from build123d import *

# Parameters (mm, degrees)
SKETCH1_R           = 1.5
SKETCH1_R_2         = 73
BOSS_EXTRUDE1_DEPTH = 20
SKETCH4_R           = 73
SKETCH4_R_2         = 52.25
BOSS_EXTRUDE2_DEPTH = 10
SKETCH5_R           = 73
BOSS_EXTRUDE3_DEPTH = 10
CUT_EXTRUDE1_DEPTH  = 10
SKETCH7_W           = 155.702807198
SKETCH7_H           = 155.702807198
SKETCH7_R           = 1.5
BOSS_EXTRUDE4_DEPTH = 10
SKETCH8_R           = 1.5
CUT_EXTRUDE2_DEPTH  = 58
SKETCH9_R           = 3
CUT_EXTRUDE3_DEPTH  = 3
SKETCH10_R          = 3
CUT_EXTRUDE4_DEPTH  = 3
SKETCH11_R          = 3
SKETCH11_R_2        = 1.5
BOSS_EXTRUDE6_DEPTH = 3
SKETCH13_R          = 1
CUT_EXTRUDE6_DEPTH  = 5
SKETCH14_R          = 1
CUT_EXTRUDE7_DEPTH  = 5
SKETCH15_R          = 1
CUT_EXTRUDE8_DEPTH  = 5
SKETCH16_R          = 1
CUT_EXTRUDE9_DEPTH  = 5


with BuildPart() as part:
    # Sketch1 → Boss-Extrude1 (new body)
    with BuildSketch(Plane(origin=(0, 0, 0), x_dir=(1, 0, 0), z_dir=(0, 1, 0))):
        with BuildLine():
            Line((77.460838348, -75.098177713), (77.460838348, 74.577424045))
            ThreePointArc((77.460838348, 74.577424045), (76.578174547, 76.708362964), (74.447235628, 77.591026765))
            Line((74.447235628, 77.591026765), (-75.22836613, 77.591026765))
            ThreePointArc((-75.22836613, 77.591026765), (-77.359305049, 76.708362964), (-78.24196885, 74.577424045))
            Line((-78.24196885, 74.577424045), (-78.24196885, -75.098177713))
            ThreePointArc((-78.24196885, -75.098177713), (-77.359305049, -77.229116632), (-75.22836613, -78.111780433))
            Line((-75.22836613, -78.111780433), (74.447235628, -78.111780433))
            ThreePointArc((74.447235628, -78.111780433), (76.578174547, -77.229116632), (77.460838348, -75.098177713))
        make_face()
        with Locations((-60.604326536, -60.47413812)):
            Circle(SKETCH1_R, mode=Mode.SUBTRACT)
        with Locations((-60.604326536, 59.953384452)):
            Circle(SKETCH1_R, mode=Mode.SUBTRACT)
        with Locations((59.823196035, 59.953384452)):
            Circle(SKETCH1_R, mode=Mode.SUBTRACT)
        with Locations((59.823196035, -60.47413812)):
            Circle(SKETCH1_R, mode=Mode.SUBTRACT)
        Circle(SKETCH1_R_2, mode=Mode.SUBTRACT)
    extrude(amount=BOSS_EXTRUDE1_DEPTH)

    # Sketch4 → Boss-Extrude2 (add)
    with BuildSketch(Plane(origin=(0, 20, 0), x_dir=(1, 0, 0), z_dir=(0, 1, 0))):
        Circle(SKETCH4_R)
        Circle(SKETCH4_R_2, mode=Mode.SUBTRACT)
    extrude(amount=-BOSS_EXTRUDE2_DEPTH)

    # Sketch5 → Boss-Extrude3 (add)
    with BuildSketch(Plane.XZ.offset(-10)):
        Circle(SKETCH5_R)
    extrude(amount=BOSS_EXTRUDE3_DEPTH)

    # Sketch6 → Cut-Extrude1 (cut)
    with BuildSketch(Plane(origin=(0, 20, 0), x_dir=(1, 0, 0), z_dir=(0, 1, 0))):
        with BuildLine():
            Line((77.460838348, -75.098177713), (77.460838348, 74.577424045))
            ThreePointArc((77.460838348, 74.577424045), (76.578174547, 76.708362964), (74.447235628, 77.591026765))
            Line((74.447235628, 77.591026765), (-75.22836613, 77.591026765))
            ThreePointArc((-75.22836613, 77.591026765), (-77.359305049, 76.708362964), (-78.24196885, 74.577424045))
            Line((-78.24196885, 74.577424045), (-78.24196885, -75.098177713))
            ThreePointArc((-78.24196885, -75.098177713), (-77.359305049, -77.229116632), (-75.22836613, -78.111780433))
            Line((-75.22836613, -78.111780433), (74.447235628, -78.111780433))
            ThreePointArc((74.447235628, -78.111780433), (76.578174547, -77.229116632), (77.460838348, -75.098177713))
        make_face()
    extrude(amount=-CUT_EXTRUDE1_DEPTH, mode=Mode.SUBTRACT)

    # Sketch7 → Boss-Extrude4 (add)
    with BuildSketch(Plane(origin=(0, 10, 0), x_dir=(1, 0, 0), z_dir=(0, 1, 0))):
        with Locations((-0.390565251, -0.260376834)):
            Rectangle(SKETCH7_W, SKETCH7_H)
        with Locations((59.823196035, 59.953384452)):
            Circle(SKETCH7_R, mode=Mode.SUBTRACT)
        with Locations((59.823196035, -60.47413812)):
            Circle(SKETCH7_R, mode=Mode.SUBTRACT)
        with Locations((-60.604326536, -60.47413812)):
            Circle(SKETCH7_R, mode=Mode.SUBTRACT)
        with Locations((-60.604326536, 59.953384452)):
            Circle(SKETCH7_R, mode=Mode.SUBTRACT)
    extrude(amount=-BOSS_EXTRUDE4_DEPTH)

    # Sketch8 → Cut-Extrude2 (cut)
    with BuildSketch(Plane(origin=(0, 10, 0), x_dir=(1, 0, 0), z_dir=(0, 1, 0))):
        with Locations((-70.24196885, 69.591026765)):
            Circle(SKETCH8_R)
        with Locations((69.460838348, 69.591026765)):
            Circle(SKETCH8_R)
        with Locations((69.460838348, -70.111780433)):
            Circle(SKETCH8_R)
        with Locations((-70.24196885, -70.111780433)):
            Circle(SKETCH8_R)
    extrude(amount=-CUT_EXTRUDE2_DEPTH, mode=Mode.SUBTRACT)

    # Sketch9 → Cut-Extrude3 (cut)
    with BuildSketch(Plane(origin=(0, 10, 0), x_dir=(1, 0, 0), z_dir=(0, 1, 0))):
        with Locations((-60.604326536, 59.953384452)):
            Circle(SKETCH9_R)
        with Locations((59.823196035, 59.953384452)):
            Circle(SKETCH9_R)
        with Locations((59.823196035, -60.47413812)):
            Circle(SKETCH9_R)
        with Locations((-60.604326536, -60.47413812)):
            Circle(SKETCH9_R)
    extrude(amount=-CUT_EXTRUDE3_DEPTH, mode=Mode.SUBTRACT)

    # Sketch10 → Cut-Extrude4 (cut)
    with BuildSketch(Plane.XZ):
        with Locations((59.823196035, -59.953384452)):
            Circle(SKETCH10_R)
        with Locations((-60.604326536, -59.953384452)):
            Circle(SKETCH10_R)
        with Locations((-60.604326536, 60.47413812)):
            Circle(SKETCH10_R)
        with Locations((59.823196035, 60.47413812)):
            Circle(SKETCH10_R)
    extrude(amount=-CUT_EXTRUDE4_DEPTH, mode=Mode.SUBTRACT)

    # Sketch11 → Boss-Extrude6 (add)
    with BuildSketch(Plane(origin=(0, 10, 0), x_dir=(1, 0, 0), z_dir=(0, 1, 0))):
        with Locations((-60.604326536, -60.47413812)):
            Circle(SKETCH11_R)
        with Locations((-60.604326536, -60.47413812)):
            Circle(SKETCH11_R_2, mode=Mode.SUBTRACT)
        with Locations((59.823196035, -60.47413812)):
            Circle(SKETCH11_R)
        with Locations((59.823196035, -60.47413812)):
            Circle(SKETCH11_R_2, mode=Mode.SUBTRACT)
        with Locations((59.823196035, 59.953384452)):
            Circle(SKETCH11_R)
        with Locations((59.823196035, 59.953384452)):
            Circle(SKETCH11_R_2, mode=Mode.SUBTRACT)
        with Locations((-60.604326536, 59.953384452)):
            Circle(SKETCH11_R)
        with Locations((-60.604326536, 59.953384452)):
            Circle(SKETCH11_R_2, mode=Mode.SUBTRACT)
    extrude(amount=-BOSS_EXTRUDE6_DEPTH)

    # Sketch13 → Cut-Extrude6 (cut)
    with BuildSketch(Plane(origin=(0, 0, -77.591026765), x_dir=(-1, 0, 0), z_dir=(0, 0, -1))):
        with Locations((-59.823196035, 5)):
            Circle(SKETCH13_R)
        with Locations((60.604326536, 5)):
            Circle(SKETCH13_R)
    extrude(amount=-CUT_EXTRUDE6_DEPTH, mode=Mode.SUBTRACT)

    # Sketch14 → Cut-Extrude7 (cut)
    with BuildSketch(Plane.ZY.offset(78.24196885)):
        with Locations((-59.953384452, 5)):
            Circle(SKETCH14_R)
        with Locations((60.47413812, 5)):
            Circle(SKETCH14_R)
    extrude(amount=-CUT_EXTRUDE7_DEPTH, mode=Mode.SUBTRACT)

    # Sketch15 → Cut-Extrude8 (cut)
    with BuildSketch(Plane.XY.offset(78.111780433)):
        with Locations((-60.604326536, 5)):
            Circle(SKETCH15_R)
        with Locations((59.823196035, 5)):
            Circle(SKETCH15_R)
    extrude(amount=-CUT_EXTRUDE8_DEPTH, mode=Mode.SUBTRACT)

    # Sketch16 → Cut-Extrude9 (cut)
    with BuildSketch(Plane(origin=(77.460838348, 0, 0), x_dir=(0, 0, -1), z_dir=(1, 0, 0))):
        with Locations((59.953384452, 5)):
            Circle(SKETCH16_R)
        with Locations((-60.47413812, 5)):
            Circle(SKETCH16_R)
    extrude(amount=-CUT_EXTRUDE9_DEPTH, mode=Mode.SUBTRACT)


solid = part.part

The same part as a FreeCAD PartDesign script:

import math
import FreeCAD as App
import Part
import Sketcher

V = App.Vector
Q = App.Units.Quantity


def add_polygon(sketch, points):
    """Adds a closed chain of lines whose ends are joined by coincident constraints."""
    first, n = sketch.GeometryCount, len(points)
    for a, b in zip(points, points[1:] + points[:1]):
        sketch.addGeometry(Part.LineSegment(App.Vector(*a, 0), App.Vector(*b, 0)), False)
    for i in range(n):
        sketch.addConstraint(Sketcher.Constraint("Coincident", first + i, 2, first + (i + 1) % n, 1))

doc = App.newDocument("Part")
body = doc.addObject("PartDesign::Body", "Body")

sketch1 = body.newObject("Sketcher::SketchObject", "Sketch")
sketch1.AttachmentSupport = (doc.getObject("XZ_Plane"), [""])
sketch1.MapMode = "FlatFace"
sketch1.addGeometry([
    Part.LineSegment(V(77.5, 75.1, 0), V(77.5, -74.6, 0)),
    Part.ArcOfCircle(Part.Circle(V(74.4, -74.6, 0), V(0, 0, 1), 3), math.radians(-90), math.radians(0)),
    Part.LineSegment(V(74.4, -77.6, 0), V(-75.2, -77.6, 0)),
    Part.ArcOfCircle(Part.Circle(V(-75.2, -74.6, 0), V(0, 0, 1), 3), math.radians(180), math.radians(270)),
    Part.LineSegment(V(-78.2, -74.6, 0), V(-78.2, 75.1, 0)),
    Part.ArcOfCircle(Part.Circle(V(-75.2, 75.1, 0), V(0, 0, 1), 3), math.radians(90), math.radians(180)),
    Part.LineSegment(V(-75.2, 78.1, 0), V(74.4, 78.1, 0)),
    Part.ArcOfCircle(Part.Circle(V(74.4, 75.1, 0), V(0, 0, 1), 3), math.radians(0), math.radians(90)),
    Part.Circle(V(-60.6, 60.5, 0), V(0, 0, 1), 1.5),
    Part.Circle(V(59.8, 60.5, 0), V(0, 0, 1), 1.5),
    Part.Circle(V(-60.6, -60, 0), V(0, 0, 1), 1.5),
    Part.Circle(V(0, 0, 0), V(0, 0, 1), 73),
    Part.Circle(V(59.8, -60, 0), V(0, 0, 1), 1.5),
], False)
sketch1.addConstraint([
    Sketcher.Constraint("Tangent", 0, 2, 1, 2),
    Sketcher.Constraint("Tangent", 1, 1, 2, 1),
    Sketcher.Constraint("Tangent", 2, 2, 3, 2),
    Sketcher.Constraint("Tangent", 3, 1, 4, 1),
    Sketcher.Constraint("Tangent", 4, 2, 5, 2),
    Sketcher.Constraint("Tangent", 5, 1, 6, 1),
    Sketcher.Constraint("Tangent", 6, 2, 7, 2),
    Sketcher.Constraint("Tangent", 7, 1, 0, 1),
    Sketcher.Constraint("Vertical", 0),
    Sketcher.Constraint("Horizontal", 2),
    Sketcher.Constraint("Vertical", 4),
    Sketcher.Constraint("Horizontal", 6),
    Sketcher.Constraint("Coincident", 11, 3, -1, 1),
    Sketcher.Constraint("Equal", 1, 3),
    Sketcher.Constraint("Equal", 3, 5),
    Sketcher.Constraint("Equal", 5, 7),
    Sketcher.Constraint("Equal", 8, 9),
    Sketcher.Constraint("Equal", 9, 10),
    Sketcher.Constraint("Equal", 10, 12),
    Sketcher.Constraint("Horizontal", 8, 3, 9, 3),
    Sketcher.Constraint("Horizontal", 10, 3, 12, 3),
    Sketcher.Constraint("Vertical", 8, 3, 10, 3),
    Sketcher.Constraint("Vertical", 9, 3, 12, 3),
    Sketcher.Constraint("Equal", 6, 0),
    Sketcher.Constraint("Diameter", 8, Q("3 mm")),
    Sketcher.Constraint("Diameter", 11, Q("146 mm")),
    Sketcher.Constraint("DistanceX", 2, 2, 2, 1, Q("149.675602 mm")),
    Sketcher.Constraint("Radius", 1, Q("3.013603 mm")),
    Sketcher.Constraint("DistanceY", -1, 1, 8, 3, Q("60.474138 mm")),
    Sketcher.Constraint("DistanceX", -1, 1, 0, 2, Q("77.460838 mm")),
    Sketcher.Constraint("DistanceY", -1, 1, 5, 1, Q("78.11178 mm")),
    Sketcher.Constraint("DistanceX", 5, 3, 8, 3, Q("14.62404 mm")),
    Sketcher.Constraint("DistanceX", 9, 3, 7, 3, Q("14.62404 mm")),
    Sketcher.Constraint("DistanceY", 3, 3, 10, 3, Q("14.62404 mm")),
])
pad1 = body.newObject("PartDesign::Pad", "Pad")
pad1.Profile = sketch1
pad1.Length = 20
pad1.Reversed = True

sketch2 = body.newObject("Sketcher::SketchObject", "Sketch001")
sketch2.AttachmentSupport = (doc.getObject("XZ_Plane"), [""])
sketch2.MapMode = "FlatFace"
sketch2.AttachmentOffset = App.Placement(V(0, 0, -20), App.Rotation())
sketch2.addGeometry([
    Part.Circle(V(0, 0, 0), V(0, 0, 1), 73),
    Part.Circle(V(0, 0, 0), V(0, 0, 1), 52),
], False)
sketch2.addConstraint([
    Sketcher.Constraint("Coincident", 0, 3, -1, 1),
    Sketcher.Constraint("Coincident", 1, 3, -1, 1),
    Sketcher.Constraint("Diameter", 0, Q("146 mm")),
    Sketcher.Constraint("Diameter", 1, Q("104.5 mm")),
])
pad2 = body.newObject("PartDesign::Pad", "Pad001")
pad2.Profile = sketch2
pad2.Length = 10

sketch3 = body.newObject("Sketcher::SketchObject", "Sketch002")
sketch3.AttachmentSupport = (doc.getObject("XZ_Plane"), [""])
sketch3.MapMode = "FlatFace"
sketch3.AttachmentOffset = App.Placement(V(0, 0, -10), App.Rotation())
sketch3.addGeometry(Part.Circle(V(0, 0, 0), V(0, 0, 1), 73), False)
sketch3.addConstraint([
    Sketcher.Constraint("Coincident", 0, 3, -1, 1),
    Sketcher.Constraint("Diameter", 0, Q("146 mm")),
])
pad3 = body.newObject("PartDesign::Pad", "Pad002")
pad3.Profile = sketch3
pad3.Length = 10

sketch4 = body.newObject("Sketcher::SketchObject", "Sketch003")
sketch4.AttachmentSupport = (doc.getObject("XZ_Plane"), [""])
sketch4.MapMode = "FlatFace"
sketch4.AttachmentOffset = App.Placement(V(0, 0, -20), App.Rotation())
sketch4.addGeometry([
    Part.LineSegment(V(77.5, 75.1, 0), V(77.5, -74.6, 0)),
    Part.ArcOfCircle(Part.Circle(V(74.4, -74.6, 0), V(0, 0, 1), 3), math.radians(-90), math.radians(0)),
    Part.LineSegment(V(74.4, -77.6, 0), V(-75.2, -77.6, 0)),
    Part.ArcOfCircle(Part.Circle(V(-75.2, -74.6, 0), V(0, 0, 1), 3), math.radians(180), math.radians(270)),
    Part.LineSegment(V(-78.2, -74.6, 0), V(-78.2, 75.1, 0)),
    Part.ArcOfCircle(Part.Circle(V(-75.2, 75.1, 0), V(0, 0, 1), 3), math.radians(90), math.radians(180)),
    Part.LineSegment(V(-75.2, 78.1, 0), V(74.4, 78.1, 0)),
    Part.ArcOfCircle(Part.Circle(V(74.4, 75.1, 0), V(0, 0, 1), 3), math.radians(0), math.radians(90)),
], False)
sketch4.addConstraint([
    Sketcher.Constraint("Tangent", 0, 2, 1, 2),
    Sketcher.Constraint("Tangent", 1, 1, 2, 1),
    Sketcher.Constraint("Tangent", 2, 2, 3, 2),
    Sketcher.Constraint("Tangent", 3, 1, 4, 1),
    Sketcher.Constraint("Tangent", 4, 2, 5, 2),
    Sketcher.Constraint("Tangent", 5, 1, 6, 1),
    Sketcher.Constraint("Tangent", 6, 2, 7, 2),
    Sketcher.Constraint("Tangent", 7, 1, 0, 1),
    Sketcher.Constraint("Vertical", 0),
    Sketcher.Constraint("Horizontal", 2),
    Sketcher.Constraint("Vertical", 4),
    Sketcher.Constraint("Horizontal", 6),
    Sketcher.Constraint("Equal", 1, 3),
    Sketcher.Constraint("Equal", 3, 5),
    Sketcher.Constraint("Equal", 5, 7),
    Sketcher.Constraint("Equal", 6, 0),
    Sketcher.Constraint("DistanceX", 2, 2, 2, 1, Q("149.675602 mm")),
    Sketcher.Constraint("Radius", 1, Q("3.013603 mm")),
    Sketcher.Constraint("DistanceX", -1, 1, 0, 2, Q("77.460838 mm")),
    Sketcher.Constraint("DistanceY", -1, 1, 5, 1, Q("78.11178 mm")),
])
pocket1 = body.newObject("PartDesign::Pocket", "Pocket")
pocket1.Profile = sketch4
pocket1.Length = 10
pocket1.Reversed = True

sketch5 = body.newObject("Sketcher::SketchObject", "Sketch004")
sketch5.AttachmentSupport = (doc.getObject("XZ_Plane"), [""])
sketch5.MapMode = "FlatFace"
sketch5.AttachmentOffset = App.Placement(V(0, 0, -10), App.Rotation())
add_polygon(sketch5, [(-78.2, -77.6), (-78.2, 78.1), (77.5, 78.1), (77.5, -77.6)])
sketch5.addGeometry(Part.Circle(V(-60.6, 60.5, 0), V(0, 0, 1), 1.5), False)
sketch5.addGeometry(Part.Circle(V(59.8, 60.5, 0), V(0, 0, 1), 1.5), False)
sketch5.addGeometry(Part.Circle(V(-60.6, -60, 0), V(0, 0, 1), 1.5), False)
sketch5.addGeometry(Part.Circle(V(59.8, -60, 0), V(0, 0, 1), 1.5), False)
sketch5.addConstraint([
    Sketcher.Constraint("Vertical", 0),
    Sketcher.Constraint("Horizontal", 1),
    Sketcher.Constraint("Vertical", 2),
    Sketcher.Constraint("Horizontal", 3),
    Sketcher.Constraint("Equal", 4, 5),
    Sketcher.Constraint("Equal", 5, 6),
    Sketcher.Constraint("Equal", 6, 7),
    Sketcher.Constraint("Horizontal", 4, 3, 5, 3),
    Sketcher.Constraint("Horizontal", 6, 3, 7, 3),
    Sketcher.Constraint("Vertical", 4, 3, 6, 3),
    Sketcher.Constraint("Vertical", 5, 3, 7, 3),
    Sketcher.Constraint("Equal", 3, 0),
    Sketcher.Constraint("Diameter", 4, Q("3 mm")),
    Sketcher.Constraint("DistanceX", 1, 1, 1, 2, Q("155.702807 mm")),
    Sketcher.Constraint("DistanceY", -1, 1, 4, 3, Q("60.474138 mm")),
    Sketcher.Constraint("DistanceX", 0, 2, -1, 1, Q("78.241969 mm")),
    Sketcher.Constraint("DistanceY", -1, 1, 0, 2, Q("78.11178 mm")),
    Sketcher.Constraint("DistanceX", 4, 3, -1, 1, Q("60.604327 mm")),
    Sketcher.Constraint("DistanceX", -1, 1, 5, 3, Q("59.823196 mm")),
    Sketcher.Constraint("DistanceY", 6, 3, -1, 1, Q("59.953384 mm")),
])
pad4 = body.newObject("PartDesign::Pad", "Pad003")
pad4.Profile = sketch5
pad4.Length = 10

sketch6 = body.newObject("Sketcher::SketchObject", "Sketch005")
sketch6.AttachmentSupport = (doc.getObject("XZ_Plane"), [""])
sketch6.MapMode = "FlatFace"
sketch6.AttachmentOffset = App.Placement(V(0, 0, -10), App.Rotation())
sketch6.addGeometry([
    Part.Circle(V(-70.2, -69.6, 0), V(0, 0, 1), 1.5),
    Part.Circle(V(69.5, -69.6, 0), V(0, 0, 1), 1.5),
    Part.Circle(V(69.5, 70.1, 0), V(0, 0, 1), 1.5),
    Part.Circle(V(-70.2, 70.1, 0), V(0, 0, 1), 1.5),
], False)
sketch6.addConstraint([
    Sketcher.Constraint("Equal", 0, 1),
    Sketcher.Constraint("Equal", 1, 2),
    Sketcher.Constraint("Equal", 2, 3),
    Sketcher.Constraint("Horizontal", 0, 3, 1, 3),
    Sketcher.Constraint("Horizontal", 2, 3, 3, 3),
    Sketcher.Constraint("Vertical", 1, 3, 2, 3),
    Sketcher.Constraint("Vertical", 0, 3, 3, 3),
    Sketcher.Constraint("Diameter", 0, Q("3 mm")),
    Sketcher.Constraint("DistanceX", 0, 3, -1, 1, Q("70.241969 mm")),
    Sketcher.Constraint("DistanceX", -1, 1, 1, 3, Q("69.460838 mm")),
    Sketcher.Constraint("DistanceY", -1, 1, 2, 3, Q("70.11178 mm")),
    Sketcher.Constraint("DistanceY", 0, 3, -1, 1, Q("69.591027 mm")),
])
pocket2 = body.newObject("PartDesign::Pocket", "Pocket001")
pocket2.Profile = sketch6
pocket2.Length = 58
pocket2.Reversed = True

sketch7 = body.newObject("Sketcher::SketchObject", "Sketch006")
sketch7.AttachmentSupport = (doc.getObject("XZ_Plane"), [""])
sketch7.MapMode = "FlatFace"
sketch7.AttachmentOffset = App.Placement(V(0, 0, -10), App.Rotation())
sketch7.addGeometry([
    Part.Circle(V(-60.6, -60, 0), V(0, 0, 1), 3),
    Part.Circle(V(59.8, -60, 0), V(0, 0, 1), 3),
    Part.Circle(V(59.8, 60.5, 0), V(0, 0, 1), 3),
    Part.Circle(V(-60.6, 60.5, 0), V(0, 0, 1), 3),
], False)
sketch7.addConstraint([
    Sketcher.Constraint("Equal", 0, 1),
    Sketcher.Constraint("Equal", 1, 2),
    Sketcher.Constraint("Equal", 2, 3),
    Sketcher.Constraint("Horizontal", 0, 3, 1, 3),
    Sketcher.Constraint("Horizontal", 2, 3, 3, 3),
    Sketcher.Constraint("Vertical", 1, 3, 2, 3),
    Sketcher.Constraint("Vertical", 0, 3, 3, 3),
    Sketcher.Constraint("Diameter", 0, Q("6 mm")),
    Sketcher.Constraint("DistanceY", -1, 1, 2, 3, Q("60.474138 mm")),
    Sketcher.Constraint("DistanceX", 0, 3, -1, 1, Q("60.604327 mm")),
    Sketcher.Constraint("DistanceY", 0, 3, -1, 1, Q("59.953384 mm")),
    Sketcher.Constraint("DistanceX", -1, 1, 1, 3, Q("59.823196 mm")),
])
pocket3 = body.newObject("PartDesign::Pocket", "Pocket002")
pocket3.Profile = sketch7
pocket3.Length = 3
pocket3.Reversed = True

sketch8 = body.newObject("Sketcher::SketchObject", "Sketch007")
sketch8.AttachmentSupport = (doc.getObject("XZ_Plane"), [""])
sketch8.MapMode = "FlatFace"
sketch8.addGeometry([
    Part.Circle(V(59.8, -60, 0), V(0, 0, 1), 3),
    Part.Circle(V(-60.6, -60, 0), V(0, 0, 1), 3),
    Part.Circle(V(-60.6, 60.5, 0), V(0, 0, 1), 3),
    Part.Circle(V(59.8, 60.5, 0), V(0, 0, 1), 3),
], False)
sketch8.addConstraint([
    Sketcher.Constraint("Equal", 0, 1),
    Sketcher.Constraint("Equal", 1, 2),
    Sketcher.Constraint("Equal", 2, 3),
    Sketcher.Constraint("Horizontal", 0, 3, 1, 3),
    Sketcher.Constraint("Horizontal", 2, 3, 3, 3),
    Sketcher.Constraint("Vertical", 1, 3, 2, 3),
    Sketcher.Constraint("Vertical", 0, 3, 3, 3),
    Sketcher.Constraint("Diameter", 0, Q("6 mm")),
    Sketcher.Constraint("DistanceY", -1, 1, 2, 3, Q("60.474138 mm")),
    Sketcher.Constraint("DistanceX", -1, 1, 0, 3, Q("59.823196 mm")),
    Sketcher.Constraint("DistanceY", 0, 3, -1, 1, Q("59.953384 mm")),
    Sketcher.Constraint("DistanceX", 1, 3, -1, 1, Q("60.604327 mm")),
])
pocket4 = body.newObject("PartDesign::Pocket", "Pocket003")
pocket4.Profile = sketch8
pocket4.Length = 3

sketch9 = body.newObject("Sketcher::SketchObject", "Sketch008")
sketch9.AttachmentSupport = (doc.getObject("XZ_Plane"), [""])
sketch9.MapMode = "FlatFace"
sketch9.AttachmentOffset = App.Placement(V(0, 0, -10), App.Rotation())
sketch9.addGeometry([
    Part.Circle(V(-60.6, 60.5, 0), V(0, 0, 1), 3),
    Part.Circle(V(-60.6, 60.5, 0), V(0, 0, 1), 1.5),
    Part.Circle(V(59.8, 60.5, 0), V(0, 0, 1), 3),
    Part.Circle(V(59.8, 60.5, 0), V(0, 0, 1), 1.5),
    Part.Circle(V(59.8, -60, 0), V(0, 0, 1), 3),
    Part.Circle(V(59.8, -60, 0), V(0, 0, 1), 1.5),
    Part.Circle(V(-60.6, -60, 0), V(0, 0, 1), 3),
    Part.Circle(V(-60.6, -60, 0), V(0, 0, 1), 1.5),
], False)
sketch9.addConstraint([
    Sketcher.Constraint("Coincident", 1, 3, 0, 3),
    Sketcher.Constraint("Coincident", 3, 3, 2, 3),
    Sketcher.Constraint("Coincident", 5, 3, 4, 3),
    Sketcher.Constraint("Coincident", 7, 3, 6, 3),
    Sketcher.Constraint("Equal", 0, 2),
    Sketcher.Constraint("Equal", 1, 3),
    Sketcher.Constraint("Equal", 2, 4),
    Sketcher.Constraint("Equal", 3, 5),
    Sketcher.Constraint("Equal", 4, 6),
    Sketcher.Constraint("Equal", 5, 7),
    Sketcher.Constraint("Horizontal", 1, 3, 2, 3),
    Sketcher.Constraint("Horizontal", 5, 3, 6, 3),
    Sketcher.Constraint("Vertical", 3, 3, 4, 3),
    Sketcher.Constraint("Vertical", 1, 3, 6, 3),
    Sketcher.Constraint("Diameter", 0, Q("6 mm")),
    Sketcher.Constraint("Diameter", 1, Q("3 mm")),
    Sketcher.Constraint("DistanceY", -1, 1, 0, 3, Q("60.474138 mm")),
    Sketcher.Constraint("DistanceX", 0, 3, -1, 1, Q("60.604327 mm")),
    Sketcher.Constraint("DistanceX", -1, 1, 2, 3, Q("59.823196 mm")),
    Sketcher.Constraint("DistanceY", 4, 3, -1, 1, Q("59.953384 mm")),
])
pad5 = body.newObject("PartDesign::Pad", "Pad004")
pad5.Profile = sketch9
pad5.Length = 3

sketch10 = body.newObject("Sketcher::SketchObject", "Sketch009")
sketch10.AttachmentSupport = (doc.getObject("XY_Plane"), [""])
sketch10.MapMode = "FlatFace"
sketch10.AttachmentOffset = App.Placement(V(0, 0, -77.591027), App.Rotation())
sketch10.addGeometry([
    Part.Circle(V(59.8, 5, 0), V(0, 0, 1), 1),
    Part.Circle(V(-60.6, 5, 0), V(0, 0, 1), 1),
], False)
sketch10.addConstraint([
    Sketcher.Constraint("Equal", 0, 1),
    Sketcher.Constraint("Horizontal", 0, 3, 1, 3),
    Sketcher.Constraint("Diameter", 0, Q("2 mm")),
    Sketcher.Constraint("DistanceY", -1, 1, 0, 3, Q("5 mm")),
    Sketcher.Constraint("DistanceX", -1, 1, 0, 3, Q("59.823196 mm")),
    Sketcher.Constraint("DistanceX", 1, 3, -1, 1, Q("60.604327 mm")),
])
pocket5 = body.newObject("PartDesign::Pocket", "Pocket004")
pocket5.Profile = sketch10
pocket5.Length = 5
pocket5.Reversed = True

sketch11 = body.newObject("Sketcher::SketchObject", "Sketch010")
sketch11.AttachmentSupport = (doc.getObject("YZ_Plane"), [""])
sketch11.MapMode = "FlatFace"
sketch11.AttachmentOffset = App.Placement(V(0, 0, -78.241969), App.Rotation())
sketch11.addGeometry([
    Part.Circle(V(5, -60, 0), V(0, 0, 1), 1),
    Part.Circle(V(5, 60.5, 0), V(0, 0, 1), 1),
], False)
sketch11.addConstraint([
    Sketcher.Constraint("Equal", 0, 1),
    Sketcher.Constraint("Vertical", 0, 3, 1, 3),
    Sketcher.Constraint("Diameter", 0, Q("2 mm")),
    Sketcher.Constraint("DistanceX", -1, 1, 0, 3, Q("5 mm")),
    Sketcher.Constraint("DistanceY", -1, 1, 1, 3, Q("60.474138 mm")),
    Sketcher.Constraint("DistanceY", 0, 3, -1, 1, Q("59.953384 mm")),
])
pocket6 = body.newObject("PartDesign::Pocket", "Pocket005")
pocket6.Profile = sketch11
pocket6.Length = 5
pocket6.Reversed = True

sketch12 = body.newObject("Sketcher::SketchObject", "Sketch011")
sketch12.AttachmentSupport = (doc.getObject("XY_Plane"), [""])
sketch12.MapMode = "FlatFace"
sketch12.AttachmentOffset = App.Placement(V(0, 0, 78.11178), App.Rotation())
sketch12.addGeometry([
    Part.Circle(V(-60.6, 5, 0), V(0, 0, 1), 1),
    Part.Circle(V(59.8, 5, 0), V(0, 0, 1), 1),
], False)
sketch12.addConstraint([
    Sketcher.Constraint("Equal", 0, 1),
    Sketcher.Constraint("Horizontal", 0, 3, 1, 3),
    Sketcher.Constraint("Diameter", 0, Q("2 mm")),
    Sketcher.Constraint("DistanceY", -1, 1, 0, 3, Q("5 mm")),
    Sketcher.Constraint("DistanceX", 0, 3, -1, 1, Q("60.604327 mm")),
    Sketcher.Constraint("DistanceX", -1, 1, 1, 3, Q("59.823196 mm")),
])
pocket7 = body.newObject("PartDesign::Pocket", "Pocket006")
pocket7.Profile = sketch12
pocket7.Length = 5

sketch13 = body.newObject("Sketcher::SketchObject", "Sketch012")
sketch13.AttachmentSupport = (doc.getObject("YZ_Plane"), [""])
sketch13.MapMode = "FlatFace"
sketch13.AttachmentOffset = App.Placement(V(0, 0, 77.460838), App.Rotation())
sketch13.addGeometry([
    Part.Circle(V(5, -60, 0), V(0, 0, 1), 1),
    Part.Circle(V(5, 60.5, 0), V(0, 0, 1), 1),
], False)
sketch13.addConstraint([
    Sketcher.Constraint("Equal", 0, 1),
    Sketcher.Constraint("Vertical", 0, 3, 1, 3),
    Sketcher.Constraint("Diameter", 0, Q("2 mm")),
    Sketcher.Constraint("DistanceX", -1, 1, 0, 3, Q("5 mm")),
    Sketcher.Constraint("DistanceY", -1, 1, 1, 3, Q("60.474138 mm")),
    Sketcher.Constraint("DistanceY", 0, 3, -1, 1, Q("59.953384 mm")),
])
pocket8 = body.newObject("PartDesign::Pocket", "Pocket007")
pocket8.Profile = sketch13
pocket8.Length = 5

doc.recompute()
